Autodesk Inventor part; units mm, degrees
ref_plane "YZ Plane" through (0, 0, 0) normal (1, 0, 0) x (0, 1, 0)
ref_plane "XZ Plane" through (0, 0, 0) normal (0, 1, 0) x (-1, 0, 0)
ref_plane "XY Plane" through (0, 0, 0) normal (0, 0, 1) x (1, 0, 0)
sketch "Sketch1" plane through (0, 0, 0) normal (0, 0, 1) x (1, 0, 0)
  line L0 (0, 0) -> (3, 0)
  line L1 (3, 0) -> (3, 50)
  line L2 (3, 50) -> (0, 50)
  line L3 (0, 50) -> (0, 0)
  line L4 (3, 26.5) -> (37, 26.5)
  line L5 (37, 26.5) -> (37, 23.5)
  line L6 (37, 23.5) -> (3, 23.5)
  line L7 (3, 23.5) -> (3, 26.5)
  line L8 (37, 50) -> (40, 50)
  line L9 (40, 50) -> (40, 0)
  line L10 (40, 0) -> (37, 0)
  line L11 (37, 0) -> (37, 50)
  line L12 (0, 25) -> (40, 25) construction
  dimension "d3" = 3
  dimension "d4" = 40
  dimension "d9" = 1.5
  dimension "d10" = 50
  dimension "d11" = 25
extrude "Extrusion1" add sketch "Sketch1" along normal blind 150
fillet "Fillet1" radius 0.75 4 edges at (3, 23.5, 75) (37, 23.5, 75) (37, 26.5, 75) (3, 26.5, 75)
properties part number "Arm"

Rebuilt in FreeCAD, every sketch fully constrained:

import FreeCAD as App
import Part
import Sketcher

V = App.Vector


def edges_at(feature, points):
    """Names of the edges that pass closest to the given points."""
    edges = feature.Shape.Edges
    near = lambda p: min(range(len(edges)), key=lambda i: edges[i].distToShape(Part.Vertex(*p))[0])
    return sorted({f"Edge{near(p) + 1}" for p in points})

doc = App.newDocument("Part")
body = doc.addObject("PartDesign::Body", "Body")

sketch1 = body.newObject("Sketcher::SketchObject", "Sketch")
sketch1.AttachmentSupport = (doc.getObject("XY_Plane"), [""])
sketch1.MapMode = "FlatFace"
sketch1.addGeometry([
    Part.LineSegment(V(0, 50, 0), V(0, 0, 0)),
    Part.LineSegment(V(0, 0, 0), V(3, 0, 0)),
    Part.LineSegment(V(3, 0, 0), V(3, 23.5, 0)),
    Part.LineSegment(V(3, 23.5, 0), V(37, 23.5, 0)),
    Part.LineSegment(V(37, 23.5, 0), V(37, 0, 0)),
    Part.LineSegment(V(37, 0, 0), V(40, 0, 0)),
    Part.LineSegment(V(40, 0, 0), V(40, 50, 0)),
    Part.LineSegment(V(40, 50, 0), V(37, 50, 0)),
    Part.LineSegment(V(37, 50, 0), V(37, 26.5, 0)),
    Part.LineSegment(V(37, 26.5, 0), V(3, 26.5, 0)),
    Part.LineSegment(V(3, 26.5, 0), V(3, 50, 0)),
    Part.LineSegment(V(3, 50, 0), V(0, 50, 0)),
], False)
sketch1.addConstraint([
    Sketcher.Constraint("Coincident", 0, 2, 1, 1),
    Sketcher.Constraint("Coincident", 1, 2, 2, 1),
    Sketcher.Constraint("Coincident", 2, 2, 3, 1),
    Sketcher.Constraint("Coincident", 3, 2, 4, 1),
    Sketcher.Constraint("Coincident", 4, 2, 5, 1),
    Sketcher.Constraint("Coincident", 5, 2, 6, 1),
    Sketcher.Constraint("Coincident", 6, 2, 7, 1),
    Sketcher.Constraint("Coincident", 7, 2, 8, 1),
    Sketcher.Constraint("Coincident", 8, 2, 9, 1),
    Sketcher.Constraint("Coincident", 9, 2, 10, 1),
    Sketcher.Constraint("Coincident", 10, 2, 11, 1),
    Sketcher.Constraint("Coincident", 11, 2, 0, 1),
    Sketcher.Constraint("Vertical", 0),
    Sketcher.Constraint("Horizontal", 1),
    Sketcher.Constraint("Vertical", 2),
    Sketcher.Constraint("Horizontal", 3),
    Sketcher.Constraint("Vertical", 4),
    Sketcher.Constraint("Horizontal", 5),
    Sketcher.Constraint("Vertical", 6),
    Sketcher.Constraint("Horizontal", 7),
    Sketcher.Constraint("Vertical", 8),
    Sketcher.Constraint("Horizontal", 9),
    Sketcher.Constraint("Vertical", 10),
    Sketcher.Constraint("Horizontal", 11),
    Sketcher.Constraint("Coincident", 0, 2, -1, 1),
    Sketcher.Constraint("PointOnObject", 4, 2, -1),
    Sketcher.Constraint("Horizontal", 7, 2, 10, 2),
    Sketcher.Constraint("Vertical", 4, 2, 7, 2),
    Sketcher.Constraint("Vertical", 2, 2, 9, 2),
    Sketcher.Constraint("Equal", 1, 5),
    Sketcher.Constraint("Equal", 4, 8),
    Sketcher.Constraint("DistanceX", 1, 1, 1, 2, 3.0),
    Sketcher.Constraint("DistanceY", 0, 2, 0, 1, 50.0),
    Sketcher.Constraint("DistanceX", -1, 1, 5, 2, 40.0),
    Sketcher.Constraint("DistanceY", 3, 2, 8, 2, 3.0),
])
pad1 = body.newObject("PartDesign::Pad", "Pad")
pad1.Profile = sketch1
pad1.Length = 150
doc.recompute()

fillet = body.newObject("PartDesign::Fillet", "Fillet")
fillet.Base = (pad1, edges_at(pad1, [
    (3, 23.5, 75),
    (37, 23.5, 75),
    (37, 26.5, 75),
    (3, 26.5, 75),
]))
fillet.Radius = 0.75

doc.recompute()
